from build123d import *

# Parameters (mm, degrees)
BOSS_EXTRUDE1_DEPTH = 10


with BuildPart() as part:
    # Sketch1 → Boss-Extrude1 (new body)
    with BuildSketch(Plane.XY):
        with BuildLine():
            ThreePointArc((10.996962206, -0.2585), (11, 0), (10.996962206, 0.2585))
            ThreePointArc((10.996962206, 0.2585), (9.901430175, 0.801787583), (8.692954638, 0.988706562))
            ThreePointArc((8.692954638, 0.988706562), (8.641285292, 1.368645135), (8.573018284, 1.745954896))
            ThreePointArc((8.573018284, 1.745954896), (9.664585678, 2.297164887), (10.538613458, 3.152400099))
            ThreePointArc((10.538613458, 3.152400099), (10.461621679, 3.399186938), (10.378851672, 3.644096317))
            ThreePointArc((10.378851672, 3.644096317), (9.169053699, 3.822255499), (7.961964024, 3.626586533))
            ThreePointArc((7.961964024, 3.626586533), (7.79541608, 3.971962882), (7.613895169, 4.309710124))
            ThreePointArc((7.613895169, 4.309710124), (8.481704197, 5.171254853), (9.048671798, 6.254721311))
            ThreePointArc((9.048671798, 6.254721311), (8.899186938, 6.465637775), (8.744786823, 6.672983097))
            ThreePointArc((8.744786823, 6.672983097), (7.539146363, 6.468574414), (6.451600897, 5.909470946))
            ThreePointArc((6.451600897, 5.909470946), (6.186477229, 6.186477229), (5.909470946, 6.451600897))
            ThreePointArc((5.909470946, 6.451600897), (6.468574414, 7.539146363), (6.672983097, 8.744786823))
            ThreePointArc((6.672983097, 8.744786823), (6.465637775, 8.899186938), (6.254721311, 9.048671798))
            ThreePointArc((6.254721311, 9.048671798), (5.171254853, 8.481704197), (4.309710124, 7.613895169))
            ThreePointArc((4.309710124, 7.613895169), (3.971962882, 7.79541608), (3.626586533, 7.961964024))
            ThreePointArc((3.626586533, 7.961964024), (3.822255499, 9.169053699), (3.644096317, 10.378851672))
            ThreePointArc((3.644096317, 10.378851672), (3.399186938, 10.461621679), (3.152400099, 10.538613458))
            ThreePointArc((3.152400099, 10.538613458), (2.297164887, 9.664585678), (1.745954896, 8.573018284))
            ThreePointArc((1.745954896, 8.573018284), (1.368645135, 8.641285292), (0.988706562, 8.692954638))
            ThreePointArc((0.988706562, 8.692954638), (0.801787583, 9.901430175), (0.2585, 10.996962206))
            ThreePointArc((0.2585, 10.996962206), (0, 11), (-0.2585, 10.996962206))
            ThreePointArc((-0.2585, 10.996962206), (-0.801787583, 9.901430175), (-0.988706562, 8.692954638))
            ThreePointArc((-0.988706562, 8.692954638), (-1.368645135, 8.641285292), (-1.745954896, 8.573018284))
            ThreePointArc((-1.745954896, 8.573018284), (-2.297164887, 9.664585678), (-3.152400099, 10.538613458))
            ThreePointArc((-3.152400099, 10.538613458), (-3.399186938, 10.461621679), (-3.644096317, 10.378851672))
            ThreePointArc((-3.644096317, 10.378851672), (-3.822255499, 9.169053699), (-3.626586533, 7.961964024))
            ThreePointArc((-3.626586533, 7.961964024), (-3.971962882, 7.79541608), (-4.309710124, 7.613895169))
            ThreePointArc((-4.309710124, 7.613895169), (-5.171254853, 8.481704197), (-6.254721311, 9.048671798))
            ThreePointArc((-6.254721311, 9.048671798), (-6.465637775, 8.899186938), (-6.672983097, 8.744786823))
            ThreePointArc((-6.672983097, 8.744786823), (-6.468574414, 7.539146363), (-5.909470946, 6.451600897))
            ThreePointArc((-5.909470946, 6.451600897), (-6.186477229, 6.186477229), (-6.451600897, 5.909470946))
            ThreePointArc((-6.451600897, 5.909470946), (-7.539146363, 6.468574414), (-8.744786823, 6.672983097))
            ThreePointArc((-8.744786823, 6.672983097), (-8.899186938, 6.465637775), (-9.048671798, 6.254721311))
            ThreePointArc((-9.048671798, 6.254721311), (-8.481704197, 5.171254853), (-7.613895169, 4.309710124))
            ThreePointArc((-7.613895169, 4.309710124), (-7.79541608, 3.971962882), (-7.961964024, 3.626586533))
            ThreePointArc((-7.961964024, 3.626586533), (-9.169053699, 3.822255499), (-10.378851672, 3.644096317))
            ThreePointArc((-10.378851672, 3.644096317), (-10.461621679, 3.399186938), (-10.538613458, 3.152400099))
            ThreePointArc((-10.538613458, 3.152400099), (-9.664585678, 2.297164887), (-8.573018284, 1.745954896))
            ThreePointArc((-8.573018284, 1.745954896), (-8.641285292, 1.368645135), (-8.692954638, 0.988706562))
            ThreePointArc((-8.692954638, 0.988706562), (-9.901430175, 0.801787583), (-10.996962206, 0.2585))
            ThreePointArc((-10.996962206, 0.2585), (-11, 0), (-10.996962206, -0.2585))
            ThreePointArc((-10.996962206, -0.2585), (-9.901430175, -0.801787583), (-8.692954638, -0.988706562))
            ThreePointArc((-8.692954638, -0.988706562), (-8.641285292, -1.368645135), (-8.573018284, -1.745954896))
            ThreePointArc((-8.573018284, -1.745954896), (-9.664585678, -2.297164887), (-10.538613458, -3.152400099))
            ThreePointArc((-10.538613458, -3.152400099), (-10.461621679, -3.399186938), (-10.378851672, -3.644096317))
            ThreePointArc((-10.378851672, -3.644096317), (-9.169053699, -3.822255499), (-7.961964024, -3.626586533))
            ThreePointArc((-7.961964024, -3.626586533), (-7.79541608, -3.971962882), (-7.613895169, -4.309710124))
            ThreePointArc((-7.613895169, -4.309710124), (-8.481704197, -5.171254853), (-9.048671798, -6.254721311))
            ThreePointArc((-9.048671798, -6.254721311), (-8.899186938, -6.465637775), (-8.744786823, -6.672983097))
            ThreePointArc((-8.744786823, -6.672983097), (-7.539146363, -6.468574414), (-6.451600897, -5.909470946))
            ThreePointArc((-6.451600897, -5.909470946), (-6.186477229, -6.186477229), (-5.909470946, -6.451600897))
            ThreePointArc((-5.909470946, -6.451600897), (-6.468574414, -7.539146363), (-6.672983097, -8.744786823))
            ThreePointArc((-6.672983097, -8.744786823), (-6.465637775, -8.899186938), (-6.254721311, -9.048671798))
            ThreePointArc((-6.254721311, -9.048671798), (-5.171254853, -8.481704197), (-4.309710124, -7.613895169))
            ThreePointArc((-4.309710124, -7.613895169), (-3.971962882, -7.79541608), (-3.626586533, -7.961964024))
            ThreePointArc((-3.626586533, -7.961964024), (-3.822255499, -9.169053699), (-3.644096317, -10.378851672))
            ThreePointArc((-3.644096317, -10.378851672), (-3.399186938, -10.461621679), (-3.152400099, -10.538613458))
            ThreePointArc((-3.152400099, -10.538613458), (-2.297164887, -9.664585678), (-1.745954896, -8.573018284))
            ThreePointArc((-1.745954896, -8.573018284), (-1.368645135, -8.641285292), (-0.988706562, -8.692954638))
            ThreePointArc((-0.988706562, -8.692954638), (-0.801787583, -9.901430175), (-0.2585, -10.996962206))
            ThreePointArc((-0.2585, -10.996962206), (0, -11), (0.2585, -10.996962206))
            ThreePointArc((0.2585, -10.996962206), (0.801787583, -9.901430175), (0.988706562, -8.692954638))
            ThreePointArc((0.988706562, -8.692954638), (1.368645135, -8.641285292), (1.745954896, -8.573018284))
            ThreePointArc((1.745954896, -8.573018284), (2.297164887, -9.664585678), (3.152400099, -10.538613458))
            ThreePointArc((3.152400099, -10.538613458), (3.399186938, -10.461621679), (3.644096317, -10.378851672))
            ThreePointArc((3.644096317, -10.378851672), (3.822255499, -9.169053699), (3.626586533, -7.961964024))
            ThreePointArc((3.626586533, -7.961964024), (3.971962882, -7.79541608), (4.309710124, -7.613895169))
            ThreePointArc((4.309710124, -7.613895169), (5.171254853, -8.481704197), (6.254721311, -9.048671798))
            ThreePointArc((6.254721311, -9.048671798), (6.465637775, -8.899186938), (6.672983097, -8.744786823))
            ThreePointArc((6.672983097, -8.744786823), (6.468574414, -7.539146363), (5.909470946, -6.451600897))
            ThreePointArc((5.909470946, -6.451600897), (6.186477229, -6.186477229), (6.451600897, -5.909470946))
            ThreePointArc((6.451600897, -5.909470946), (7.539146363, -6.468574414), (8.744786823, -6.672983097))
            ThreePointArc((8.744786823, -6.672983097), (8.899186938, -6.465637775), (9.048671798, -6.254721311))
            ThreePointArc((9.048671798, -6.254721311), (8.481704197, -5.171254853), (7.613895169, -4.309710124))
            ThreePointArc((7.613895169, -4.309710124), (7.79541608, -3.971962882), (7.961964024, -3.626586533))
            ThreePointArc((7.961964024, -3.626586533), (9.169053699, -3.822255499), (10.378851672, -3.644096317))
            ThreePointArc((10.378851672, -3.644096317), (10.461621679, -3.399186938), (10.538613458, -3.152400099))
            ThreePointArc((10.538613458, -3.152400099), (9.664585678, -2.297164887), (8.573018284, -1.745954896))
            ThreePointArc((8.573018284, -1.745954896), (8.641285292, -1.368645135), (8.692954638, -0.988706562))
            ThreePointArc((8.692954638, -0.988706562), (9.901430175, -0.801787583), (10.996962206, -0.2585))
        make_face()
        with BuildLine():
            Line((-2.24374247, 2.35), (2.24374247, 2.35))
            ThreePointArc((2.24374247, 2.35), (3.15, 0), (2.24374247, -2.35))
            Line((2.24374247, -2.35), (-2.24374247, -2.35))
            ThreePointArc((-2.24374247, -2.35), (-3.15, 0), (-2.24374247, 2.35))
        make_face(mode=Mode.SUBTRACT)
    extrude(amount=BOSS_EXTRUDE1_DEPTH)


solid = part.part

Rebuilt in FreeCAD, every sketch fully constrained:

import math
import FreeCAD as App
import Part
import Sketcher

doc = App.newDocument("Part")
body = doc.addObject("PartDesign::Body", "Body")

# Sketch on XY plane
sketch1 = body.newObject("Sketcher::SketchObject", "Sketch")
sketch1.AttachmentSupport = (doc.getObject("XY_Plane"), [""])
sketch1.MapMode = "FlatFace"
sketch1.addGeometry([
    Part.ArcOfCircle(Part.Circle(App.Vector(0, 0, 0), App.Vector(0, 0, 1), 11), math.radians(-1.35), math.radians(1.35)),  # 0
    Part.ArcOfCircle(Part.Circle(App.Vector(8.7, -3, 0), App.Vector(0, 0, 1), 4), math.radians(55), math.radians(90)),  # 1
    Part.ArcOfCircle(Part.Circle(App.Vector(0, 0, 0), App.Vector(0, 0, 1), 8.7), math.radians(6.49), math.radians(11.51)),  # 2
    Part.ArcOfCircle(Part.Circle(App.Vector(7.3, 5.6, 0), App.Vector(0, 0, 1), 4), math.radians(-72), math.radians(-37)),  # 3
    Part.ArcOfCircle(Part.Circle(App.Vector(0, 0, 0), App.Vector(0, 0, 1), 11), math.radians(16.65), math.radians(19.35)),  # 4
    Part.ArcOfCircle(Part.Circle(App.Vector(9.2, -0.2, 0), App.Vector(0, 0, 1), 4), math.radians(73), math.radians(108)),  # 5
    Part.ArcOfCircle(Part.Circle(App.Vector(0, 0, 0), App.Vector(0, 0, 1), 8.7), math.radians(24.49), math.radians(29.51)),  # 6
    Part.ArcOfCircle(Part.Circle(App.Vector(5.3, 7.5, 0), App.Vector(0, 0, 1), 4), math.radians(-54), math.radians(-19)),  # 7
    Part.ArcOfCircle(Part.Circle(App.Vector(0, 0, 0), App.Vector(0, 0, 1), 11), math.radians(34.65), math.radians(37.35)),  # 8
    Part.ArcOfCircle(Part.Circle(App.Vector(8.8, 2.7, 0), App.Vector(0, 0, 1), 4), math.radians(91), math.radians(126)),  # 9
    Part.ArcOfCircle(Part.Circle(App.Vector(0, 0, 0), App.Vector(0, 0, 1), 8.7), math.radians(42.49), math.radians(47.51)),  # 10
    Part.ArcOfCircle(Part.Circle(App.Vector(2.7, 8.8, 0), App.Vector(0, 0, 1), 4), math.radians(-36), math.radians(-1)),  # 11
    Part.ArcOfCircle(Part.Circle(App.Vector(0, 0, 0), App.Vector(0, 0, 1), 11), math.radians(52.65), math.radians(55.35)),  # 12
    Part.ArcOfCircle(Part.Circle(App.Vector(7.5, 5.3, 0), App.Vector(0, 0, 1), 4), math.radians(109), math.radians(144)),  # 13
    Part.ArcOfCircle(Part.Circle(App.Vector(0, 0, 0), App.Vector(0, 0, 1), 8.7), math.radians(60.49), math.radians(65.51)),  # 14
    Part.ArcOfCircle(Part.Circle(App.Vector(-0.2, 9.2, 0), App.Vector(0, 0, 1), 4), math.radians(-18), math.radians(17)),  # 15
    Part.ArcOfCircle(Part.Circle(App.Vector(0, 0, 0), App.Vector(0, 0, 1), 11), math.radians(70.65), math.radians(73.35)),  # 16
    Part.ArcOfCircle(Part.Circle(App.Vector(5.6, 7.3, 0), App.Vector(0, 0, 1), 4), math.radians(127), math.radians(162)),  # 17
    Part.ArcOfCircle(Part.Circle(App.Vector(0, 0, 0), App.Vector(0, 0, 1), 8.7), math.radians(78.49), math.radians(83.51)),  # 18
    Part.ArcOfCircle(Part.Circle(App.Vector(-3, 8.7, 0), App.Vector(0, 0, 1), 4), math.radians(0), math.radians(35)),  # 19
    Part.ArcOfCircle(Part.Circle(App.Vector(0, 0, 0), App.Vector(0, 0, 1), 11), math.radians(88.65), math.radians(91.35)),  # 20
    Part.ArcOfCircle(Part.Circle(App.Vector(3, 8.7, 0), App.Vector(0, 0, 1), 4), math.radians(145), math.radians(180)),  # 21
    Part.ArcOfCircle(Part.Circle(App.Vector(0, 0, 0), App.Vector(0, 0, 1), 8.7), math.radians(96.49), math.radians(101.51)),  # 22
    Part.ArcOfCircle(Part.Circle(App.Vector(-5.6, 7.3, 0), App.Vector(0, 0, 1), 4), math.radians(18), math.radians(53)),  # 23
    Part.ArcOfCircle(Part.Circle(App.Vector(0, 0, 0), App.Vector(0, 0, 1), 11), math.radians(106.65), math.radians(109.35)),  # 24
    Part.ArcOfCircle(Part.Circle(App.Vector(0.2, 9.2, 0), App.Vector(0, 0, 1), 4), math.radians(163), math.radians(198)),  # 25
    Part.ArcOfCircle(Part.Circle(App.Vector(0, 0, 0), App.Vector(0, 0, 1), 8.7), math.radians(114.49), math.radians(119.51)),  # 26
    Part.ArcOfCircle(Part.Circle(App.Vector(-7.5, 5.3, 0), App.Vector(0, 0, 1), 4), math.radians(36), math.radians(71)),  # 27
    Part.ArcOfCircle(Part.Circle(App.Vector(0, 0, 0), App.Vector(0, 0, 1), 11), math.radians(124.65), math.radians(127.35)),  # 28
    Part.ArcOfCircle(Part.Circle(App.Vector(-2.7, 8.8, 0), App.Vector(0, 0, 1), 4), math.radians(-179), math.radians(-144)),  # 29
    Part.ArcOfCircle(Part.Circle(App.Vector(0, 0, 0), App.Vector(0, 0, 1), 8.7), math.radians(132.49), math.radians(137.51)),  # 30
    Part.ArcOfCircle(Part.Circle(App.Vector(-8.8, 2.7, 0), App.Vector(0, 0, 1), 4), math.radians(54), math.radians(89)),  # 31
    Part.ArcOfCircle(Part.Circle(App.Vector(0, 0, 0), App.Vector(0, 0, 1), 11), math.radians(142.65), math.radians(145.35)),  # 32
    Part.ArcOfCircle(Part.Circle(App.Vector(-5.3, 7.5, 0), App.Vector(0, 0, 1), 4), math.radians(-161), math.radians(-126)),  # 33
    Part.ArcOfCircle(Part.Circle(App.Vector(0, 0, 0), App.Vector(0, 0, 1), 8.7), math.radians(150.49), math.radians(155.51)),  # 34
    Part.ArcOfCircle(Part.Circle(App.Vector(-9.2, -0.2, 0), App.Vector(0, 0, 1), 4), math.radians(72), math.radians(107)),  # 35
    Part.ArcOfCircle(Part.Circle(App.Vector(0, 0, 0), App.Vector(0, 0, 1), 11), math.radians(160.65), math.radians(163.35)),  # 36
    Part.ArcOfCircle(Part.Circle(App.Vector(-7.3, 5.6, 0), App.Vector(0, 0, 1), 4), math.radians(-143), math.radians(-108)),  # 37
    Part.ArcOfCircle(Part.Circle(App.Vector(0, 0, 0), App.Vector(0, 0, 1), 8.7), math.radians(168.49), math.radians(173.51)),  # 38
    Part.ArcOfCircle(Part.Circle(App.Vector(-8.7, -3, 0), App.Vector(0, 0, 1), 4), math.radians(90), math.radians(125)),  # 39
    Part.ArcOfCircle(Part.Circle(App.Vector(0, 0, 0), App.Vector(0, 0, 1), 11), math.radians(178.65), math.radians(181.35)),  # 40
    Part.ArcOfCircle(Part.Circle(App.Vector(-8.7, 3, 0), App.Vector(0, 0, 1), 4), math.radians(-125), math.radians(-90)),  # 41
    Part.ArcOfCircle(Part.Circle(App.Vector(0, 0, 0), App.Vector(0, 0, 1), 8.7), math.radians(-173.51), math.radians(-168.49)),  # 42
    Part.ArcOfCircle(Part.Circle(App.Vector(-7.3, -5.6, 0), App.Vector(0, 0, 1), 4), math.radians(108), math.radians(143)),  # 43
    Part.ArcOfCircle(Part.Circle(App.Vector(0, 0, 0), App.Vector(0, 0, 1), 11), math.radians(-163.35), math.radians(-160.65)),  # 44
    Part.ArcOfCircle(Part.Circle(App.Vector(-9.2, 0.2, 0), App.Vector(0, 0, 1), 4), math.radians(-107), math.radians(-72)),  # 45
    Part.ArcOfCircle(Part.Circle(App.Vector(0, 0, 0), App.Vector(0, 0, 1), 8.7), math.radians(-155.51), math.radians(-150.49)),  # 46
    Part.ArcOfCircle(Part.Circle(App.Vector(-5.3, -7.5, 0), App.Vector(0, 0, 1), 4), math.radians(126), math.radians(161)),  # 47
    Part.ArcOfCircle(Part.Circle(App.Vector(0, 0, 0), App.Vector(0, 0, 1), 11), math.radians(-145.35), math.radians(-142.65)),  # 48
    Part.ArcOfCircle(Part.Circle(App.Vector(-8.8, -2.7, 0), App.Vector(0, 0, 1), 4), math.radians(-89), math.radians(-54)),  # 49
    Part.ArcOfCircle(Part.Circle(App.Vector(0, 0, 0), App.Vector(0, 0, 1), 8.7), math.radians(-137.51), math.radians(-132.49)),  # 50
    Part.ArcOfCircle(Part.Circle(App.Vector(-2.7, -8.8, 0), App.Vector(0, 0, 1), 4), math.radians(144), math.radians(179)),  # 51
    Part.ArcOfCircle(Part.Circle(App.Vector(0, 0, 0), App.Vector(0, 0, 1), 11), math.radians(-127.35), math.radians(-124.65)),  # 52
    Part.ArcOfCircle(Part.Circle(App.Vector(-7.5, -5.3, 0), App.Vector(0, 0, 1), 4), math.radians(-71), math.radians(-36)),  # 53
    Part.ArcOfCircle(Part.Circle(App.Vector(0, 0, 0), App.Vector(0, 0, 1), 8.7), math.radians(-119.51), math.radians(-114.49)),  # 54
    Part.ArcOfCircle(Part.Circle(App.Vector(0.2, -9.2, 0), App.Vector(0, 0, 1), 4), math.radians(162), math.radians(197)),  # 55
    Part.ArcOfCircle(Part.Circle(App.Vector(0, 0, 0), App.Vector(0, 0, 1), 11), math.radians(-109.35), math.radians(-106.65)),  # 56
    Part.ArcOfCircle(Part.Circle(App.Vector(-5.6, -7.3, 0), App.Vector(0, 0, 1), 4), math.radians(-53), math.radians(-18)),  # 57
    Part.ArcOfCircle(Part.Circle(App.Vector(0, 0, 0), App.Vector(0, 0, 1), 8.7), math.radians(-101.51), math.radians(-96.49)),  # 58
    Part.ArcOfCircle(Part.Circle(App.Vector(3, -8.7, 0), App.Vector(0, 0, 1), 4), math.radians(-180), math.radians(-145)),  # 59
    Part.ArcOfCircle(Part.Circle(App.Vector(0, 0, 0), App.Vector(0, 0, 1), 11), math.radians(-91.35), math.radians(-88.65)),  # 60
    Part.ArcOfCircle(Part.Circle(App.Vector(-3, -8.7, 0), App.Vector(0, 0, 1), 4), math.radians(-35), math.radians(0)),  # 61
    Part.ArcOfCircle(Part.Circle(App.Vector(0, 0, 0), App.Vector(0, 0, 1), 8.7), math.radians(-83.51), math.radians(-78.49)),  # 62
    Part.ArcOfCircle(Part.Circle(App.Vector(5.6, -7.3, 0), App.Vector(0, 0, 1), 4), math.radians(-162), math.radians(-127)),  # 63
    Part.ArcOfCircle(Part.Circle(App.Vector(0, 0, 0), App.Vector(0, 0, 1), 11), math.radians(-73.35), math.radians(-70.65)),  # 64
    Part.ArcOfCircle(Part.Circle(App.Vector(-0.2, -9.2, 0), App.Vector(0, 0, 1), 4), math.radians(-17), math.radians(18)),  # 65
    Part.ArcOfCircle(Part.Circle(App.Vector(0, 0, 0), App.Vector(0, 0, 1), 8.7), math.radians(-65.51), math.radians(-60.49)),  # 66
    Part.ArcOfCircle(Part.Circle(App.Vector(7.5, -5.3, 0), App.Vector(0, 0, 1), 4), math.radians(-144), math.radians(-109)),  # 67
    Part.ArcOfCircle(Part.Circle(App.Vector(0, 0, 0), App.Vector(0, 0, 1), 11), math.radians(-55.35), math.radians(-52.65)),  # 68
    Part.ArcOfCircle(Part.Circle(App.Vector(2.7, -8.8, 0), App.Vector(0, 0, 1), 4), math.radians(1), math.radians(36)),  # 69
    Part.ArcOfCircle(Part.Circle(App.Vector(0, 0, 0), App.Vector(0, 0, 1), 8.7), math.radians(-47.51), math.radians(-42.49)),  # 70
    Part.ArcOfCircle(Part.Circle(App.Vector(8.8, -2.7, 0), App.Vector(0, 0, 1), 4), math.radians(-126), math.radians(-91)),  # 71
    Part.ArcOfCircle(Part.Circle(App.Vector(0, 0, 0), App.Vector(0, 0, 1), 11), math.radians(-37.35), math.radians(-34.65)),  # 72
    Part.ArcOfCircle(Part.Circle(App.Vector(5.3, -7.5, 0), App.Vector(0, 0, 1), 4), math.radians(19), math.radians(54)),  # 73
    Part.ArcOfCircle(Part.Circle(App.Vector(0, 0, 0), App.Vector(0, 0, 1), 8.7), math.radians(-29.51), math.radians(-24.49)),  # 74
    Part.ArcOfCircle(Part.Circle(App.Vector(9.2, 0.2, 0), App.Vector(0, 0, 1), 4), math.radians(-108), math.radians(-73)),  # 75
    Part.ArcOfCircle(Part.Circle(App.Vector(0, 0, 0), App.Vector(0, 0, 1), 11), math.radians(-19.35), math.radians(-16.65)),  # 76
    Part.ArcOfCircle(Part.Circle(App.Vector(7.3, -5.6, 0), App.Vector(0, 0, 1), 4), math.radians(37), math.radians(72)),  # 77
    Part.ArcOfCircle(Part.Circle(App.Vector(0, 0, 0), App.Vector(0, 0, 1), 8.7), math.radians(-11.51), math.radians(-6.49)),  # 78
    Part.ArcOfCircle(Part.Circle(App.Vector(8.7, 3, 0), App.Vector(0, 0, 1), 4), math.radians(-90), math.radians(-55)),  # 79
    Part.ArcOfCircle(Part.Circle(App.Vector(0.3, 0, 0), App.Vector(0, 0, 1), 3.5), math.radians(138), math.radians(222)),  # 80
    Part.LineSegment(App.Vector(-2.2, 2.4, 0), App.Vector(2.2, 2.4, 0)),  # 81
    Part.ArcOfCircle(Part.Circle(App.Vector(-0.3, 0, 0), App.Vector(0, 0, 1), 3.5), math.radians(-42), math.radians(42)),  # 82
    Part.LineSegment(App.Vector(2.2, -2.4, 0), App.Vector(-2.2, -2.4, 0)),  # 83
], False)
sketch1.addConstraint([
    Sketcher.Constraint("Coincident", 0, 2, 1, 1),
    Sketcher.Constraint("Coincident", 1, 2, 2, 1),
    Sketcher.Constraint("Coincident", 2, 2, 3, 1),
    Sketcher.Constraint("Coincident", 3, 2, 4, 1),
    Sketcher.Constraint("Coincident", 4, 2, 5, 1),
    Sketcher.Constraint("Coincident", 5, 2, 6, 1),
    Sketcher.Constraint("Coincident", 6, 2, 7, 1),
    Sketcher.Constraint("Coincident", 7, 2, 8, 1),
    Sketcher.Constraint("Coincident", 8, 2, 9, 1),
    Sketcher.Constraint("Coincident", 9, 2, 10, 1),
    Sketcher.Constraint("Coincident", 10, 2, 11, 1),
    Sketcher.Constraint("Coincident", 11, 2, 12, 1),
    Sketcher.Constraint("Coincident", 12, 2, 13, 1),
    Sketcher.Constraint("Coincident", 13, 2, 14, 1),
    Sketcher.Constraint("Coincident", 14, 2, 15, 1),
    Sketcher.Constraint("Coincident", 15, 2, 16, 1),
    Sketcher.Constraint("Coincident", 16, 2, 17, 1),
    Sketcher.Constraint("Coincident", 17, 2, 18, 1),
    Sketcher.Constraint("Coincident", 18, 2, 19, 1),
    Sketcher.Constraint("Coincident", 19, 2, 20, 1),
    Sketcher.Constraint("Coincident", 20, 2, 21, 1),
    Sketcher.Constraint("Coincident", 21, 2, 22, 1),
    Sketcher.Constraint("Coincident", 22, 2, 23, 1),
    Sketcher.Constraint("Coincident", 23, 2, 24, 1),
    Sketcher.Constraint("Coincident", 24, 2, 25, 1),
    Sketcher.Constraint("Coincident", 25, 2, 26, 1),
    Sketcher.Constraint("Coincident", 26, 2, 27, 1),
    Sketcher.Constraint("Coincident", 27, 2, 28, 1),
    Sketcher.Constraint("Coincident", 28, 2, 29, 1),
    Sketcher.Constraint("Coincident", 29, 2, 30, 1),
    Sketcher.Constraint("Coincident", 30, 2, 31, 1),
    Sketcher.Constraint("Coincident", 31, 2, 32, 1),
    Sketcher.Constraint("Coincident", 32, 2, 33, 1),
    Sketcher.Constraint("Coincident", 33, 2, 34, 1),
    Sketcher.Constraint("Coincident", 34, 2, 35, 1),
    Sketcher.Constraint("Coincident", 35, 2, 36, 1),
    Sketcher.Constraint("Coincident", 36, 2, 37, 1),
    Sketcher.Constraint("Coincident", 37, 2, 38, 1),
    Sketcher.Constraint("Coincident", 38, 2, 39, 1),
    Sketcher.Constraint("Coincident", 39, 2, 40, 1),
    Sketcher.Constraint("Coincident", 40, 2, 41, 1),
    Sketcher.Constraint("Coincident", 41, 2, 42, 1),
    Sketcher.Constraint("Coincident", 42, 2, 43, 1),
    Sketcher.Constraint("Coincident", 43, 2, 44, 1),
    Sketcher.Constraint("Coincident", 44, 2, 45, 1),
    Sketcher.Constraint("Coincident", 45, 2, 46, 1),
    Sketcher.Constraint("Coincident", 46, 2, 47, 1),
    Sketcher.Constraint("Coincident", 47, 2, 48, 1),
    Sketcher.Constraint("Coincident", 48, 2, 49, 1),
    Sketcher.Constraint("Coincident", 49, 2, 50, 1),
    Sketcher.Constraint("Coincident", 50, 2, 51, 1),
    Sketcher.Constraint("Coincident", 51, 2, 52, 1),
    Sketcher.Constraint("Coincident", 52, 2, 53, 1),
    Sketcher.Constraint("Coincident", 53, 2, 54, 1),
    Sketcher.Constraint("Coincident", 54, 2, 55, 1),
    Sketcher.Constraint("Coincident", 55, 2, 56, 1),
    Sketcher.Constraint("Coincident", 56, 2, 57, 1),
    Sketcher.Constraint("Coincident", 57, 2, 58, 1),
    Sketcher.Constraint("Coincident", 58, 2, 59, 1),
    Sketcher.Constraint("Coincident", 59, 2, 60, 1),
    Sketcher.Constraint("Coincident", 60, 2, 61, 1),
    Sketcher.Constraint("Coincident", 61, 2, 62, 1),
    Sketcher.Constraint("Coincident", 62, 2, 63, 1),
    Sketcher.Constraint("Coincident", 63, 2, 64, 1),
    Sketcher.Constraint("Coincident", 64, 2, 65, 1),
    Sketcher.Constraint("Coincident", 65, 2, 66, 1),
    Sketcher.Constraint("Coincident", 66, 2, 67, 1),
    Sketcher.Constraint("Coincident", 67, 2, 68, 1),
    Sketcher.Constraint("Coincident", 68, 2, 69, 1),
    Sketcher.Constraint("Coincident", 69, 2, 70, 1),
    Sketcher.Constraint("Coincident", 70, 2, 71, 1),
    Sketcher.Constraint("Coincident", 71, 2, 72, 1),
    Sketcher.Constraint("Coincident", 72, 2, 73, 1),
    Sketcher.Constraint("Coincident", 73, 2, 74, 1),
    Sketcher.Constraint("Coincident", 74, 2, 75, 1),
    Sketcher.Constraint("Coincident", 75, 2, 76, 1),
    Sketcher.Constraint("Coincident", 76, 2, 77, 1),
    Sketcher.Constraint("Coincident", 77, 2, 78, 1),
    Sketcher.Constraint("Coincident", 78, 2, 79, 1),
    Sketcher.Constraint("Coincident", 79, 2, 0, 1),
    Sketcher.Constraint("Coincident", 80, 1, 81, 1),
    Sketcher.Constraint("Coincident", 81, 2, 82, 2),
    Sketcher.Constraint("Coincident", 82, 1, 83, 1),
    Sketcher.Constraint("Coincident", 83, 2, 80, 2),
    Sketcher.Constraint("Horizontal", 81),
    Sketcher.Constraint("Horizontal", 83),
    Sketcher.Constraint("Coincident", 0, 3, -1, 1),
    Sketcher.Constraint("Coincident", 2, 3, -1, 1),
    Sketcher.Constraint("Coincident", 4, 3, -1, 1),
    Sketcher.Constraint("Coincident", 6, 3, -1, 1),
    Sketcher.Constraint("Coincident", 8, 3, -1, 1),
    Sketcher.Constraint("Coincident", 10, 3, -1, 1),
    Sketcher.Constraint("Coincident", 12, 3, -1, 1),
    Sketcher.Constraint("Coincident", 14, 3, -1, 1),
    Sketcher.Constraint("Coincident", 16, 3, -1, 1),
    Sketcher.Constraint("Coincident", 18, 3, -1, 1),
    Sketcher.Constraint("Coincident", 20, 3, -1, 1),
    Sketcher.Constraint("Coincident", 22, 3, -1, 1),
    Sketcher.Constraint("Coincident", 24, 3, -1, 1),
    Sketcher.Constraint("Coincident", 26, 3, -1, 1),
    Sketcher.Constraint("Coincident", 28, 3, -1, 1),
    Sketcher.Constraint("Coincident", 30, 3, -1, 1),
    Sketcher.Constraint("Coincident", 32, 3, -1, 1),
    Sketcher.Constraint("Coincident", 34, 3, -1, 1),
    Sketcher.Constraint("Coincident", 36, 3, -1, 1),
    Sketcher.Constraint("Coincident", 38, 3, -1, 1),
    Sketcher.Constraint("Coincident", 40, 3, -1, 1),
    Sketcher.Constraint("Coincident", 42, 3, -1, 1),
    Sketcher.Constraint("Coincident", 44, 3, -1, 1),
    Sketcher.Constraint("Coincident", 46, 3, -1, 1),
    Sketcher.Constraint("Coincident", 48, 3, -1, 1),
    Sketcher.Constraint("Coincident", 50, 3, -1, 1),
    Sketcher.Constraint("Coincident", 52, 3, -1, 1),
    Sketcher.Constraint("Coincident", 54, 3, -1, 1),
    Sketcher.Constraint("Coincident", 56, 3, -1, 1),
    Sketcher.Constraint("Coincident", 58, 3, -1, 1),
    Sketcher.Constraint("Coincident", 60, 3, -1, 1),
    Sketcher.Constraint("Coincident", 62, 3, -1, 1),
    Sketcher.Constraint("Coincident", 64, 3, -1, 1),
    Sketcher.Constraint("Coincident", 66, 3, -1, 1),
    Sketcher.Constraint("Coincident", 68, 3, -1, 1),
    Sketcher.Constraint("Coincident", 70, 3, -1, 1),
    Sketcher.Constraint("Coincident", 72, 3, -1, 1),
    Sketcher.Constraint("Coincident", 74, 3, -1, 1),
    Sketcher.Constraint("Coincident", 76, 3, -1, 1),
    Sketcher.Constraint("Coincident", 78, 3, -1, 1),
    Sketcher.Constraint("Equal", 1, 3),
    Sketcher.Constraint("Equal", 0, 4),
    Sketcher.Constraint("Equal", 3, 5),
    Sketcher.Constraint("Equal", 2, 6),
    Sketcher.Constraint("Equal", 5, 7),
    Sketcher.Constraint("Equal", 4, 8),
    Sketcher.Constraint("Equal", 7, 9),
    Sketcher.Constraint("Equal", 6, 10),
    Sketcher.Constraint("Equal", 9, 11),
    Sketcher.Constraint("Equal", 8, 12),
    Sketcher.Constraint("Equal", 11, 13),
    Sketcher.Constraint("Equal", 10, 14),
    Sketcher.Constraint("Equal", 13, 15),
    Sketcher.Constraint("Equal", 12, 16),
    Sketcher.Constraint("Equal", 15, 17),
    Sketcher.Constraint("Equal", 14, 18),
    Sketcher.Constraint("Equal", 17, 19),
    Sketcher.Constraint("Equal", 16, 20),
    Sketcher.Constraint("Equal", 19, 21),
    Sketcher.Constraint("Equal", 18, 22),
    Sketcher.Constraint("Equal", 21, 23),
    Sketcher.Constraint("Equal", 20, 24),
    Sketcher.Constraint("Equal", 23, 25),
    Sketcher.Constraint("Equal", 22, 26),
    Sketcher.Constraint("Equal", 25, 27),
    Sketcher.Constraint("Equal", 24, 28),
    Sketcher.Constraint("Equal", 27, 29),
    Sketcher.Constraint("Equal", 26, 30),
    Sketcher.Constraint("Equal", 29, 31),
    Sketcher.Constraint("Equal", 28, 32),
    Sketcher.Constraint("Equal", 31, 33),
    Sketcher.Constraint("Equal", 30, 34),
    Sketcher.Constraint("Equal", 33, 35),
    Sketcher.Constraint("Equal", 32, 36),
    Sketcher.Constraint("Equal", 35, 37),
    Sketcher.Constraint("Equal", 34, 38),
    Sketcher.Constraint("Equal", 37, 39),
    Sketcher.Constraint("Equal", 36, 40),
    Sketcher.Constraint("Equal", 39, 41),
    Sketcher.Constraint("Equal", 38, 42),
    Sketcher.Constraint("Equal", 41, 43),
    Sketcher.Constraint("Equal", 40, 44),
    Sketcher.Constraint("Equal", 43, 45),
    Sketcher.Constraint("Equal", 42, 46),
    Sketcher.Constraint("Equal", 45, 47),
    Sketcher.Constraint("Equal", 44, 48),
    Sketcher.Constraint("Equal", 47, 49),
    Sketcher.Constraint("Equal", 46, 50),
    Sketcher.Constraint("Equal", 49, 51),
    Sketcher.Constraint("Equal", 48, 52),
    Sketcher.Constraint("Equal", 51, 53),
    Sketcher.Constraint("Equal", 50, 54),
    Sketcher.Constraint("Equal", 53, 55),
    Sketcher.Constraint("Equal", 52, 56),
    Sketcher.Constraint("Equal", 55, 57),
    Sketcher.Constraint("Equal", 54, 58),
    Sketcher.Constraint("Equal", 57, 59),
    Sketcher.Constraint("Equal", 56, 60),
    Sketcher.Constraint("Equal", 59, 61),
    Sketcher.Constraint("Equal", 58, 62),
    Sketcher.Constraint("Equal", 61, 63),
    Sketcher.Constraint("Equal", 60, 64),
    Sketcher.Constraint("Equal", 63, 65),
    Sketcher.Constraint("Equal", 62, 66),
    Sketcher.Constraint("Equal", 65, 67),
    Sketcher.Constraint("Equal", 64, 68),
    Sketcher.Constraint("Equal", 67, 69),
    Sketcher.Constraint("Equal", 66, 70),
    Sketcher.Constraint("Equal", 69, 71),
    Sketcher.Constraint("Equal", 68, 72),
    Sketcher.Constraint("Equal", 71, 73),
    Sketcher.Constraint("Equal", 70, 74),
    Sketcher.Constraint("Equal", 73, 75),
    Sketcher.Constraint("Equal", 72, 76),
    Sketcher.Constraint("Equal", 75, 77),
    Sketcher.Constraint("Equal", 74, 78),
    Sketcher.Constraint("Equal", 77, 79),
    Sketcher.Constraint("Equal", 80, 82),
    Sketcher.Constraint("Symmetric", 1, 3, 41, 3, -1, 1),
    Sketcher.Constraint("Symmetric", 3, 3, 43, 3, -1, 1),
    Sketcher.Constraint("Symmetric", 5, 3, 45, 3, -1, 1),
    Sketcher.Constraint("Symmetric", 7, 3, 47, 3, -1, 1),
    Sketcher.Constraint("Symmetric", 9, 3, 49, 3, -1, 1),
    Sketcher.Constraint("Symmetric", 11, 3, 51, 3, -1, 1),
    Sketcher.Constraint("Symmetric", 13, 3, 53, 3, -1, 1),
    Sketcher.Constraint("Symmetric", 15, 3, 55, 3, -1, 1),
    Sketcher.Constraint("Symmetric", 17, 3, 57, 3, -1, 1),
    Sketcher.Constraint("Symmetric", 19, 3, 59, 3, -1, 1),
    Sketcher.Constraint("Symmetric", 21, 3, 61, 3, -1, 1),
    Sketcher.Constraint("Symmetric", 23, 3, 63, 3, -1, 1),
    Sketcher.Constraint("Symmetric", 25, 3, 65, 3, -1, 1),
    Sketcher.Constraint("Symmetric", 27, 3, 67, 3, -1, 1),
    Sketcher.Constraint("Symmetric", 29, 3, 69, 3, -1, 1),
    Sketcher.Constraint("Symmetric", 31, 3, 71, 3, -1, 1),
    Sketcher.Constraint("Symmetric", 33, 3, 73, 3, -1, 1),
    Sketcher.Constraint("Symmetric", 35, 3, 75, 3, -1, 1),
    Sketcher.Constraint("Symmetric", 37, 3, 77, 3, -1, 1),
    Sketcher.Constraint("Symmetric", 39, 3, 79, 3, -1, 1),
    Sketcher.Constraint("Symmetric", 80, 3, 82, 3, -1, 1),
    Sketcher.Constraint("Symmetric", 19, 3, 21, 3, -2),
    Sketcher.Constraint("Symmetric", 17, 3, 23, 3, -2),
    Sketcher.Constraint("Symmetric", 15, 3, 25, 3, -2),
    Sketcher.Constraint("Symmetric", 13, 3, 27, 3, -2),
    Sketcher.Constraint("Symmetric", 11, 3, 29, 3, -2),
    Sketcher.Constraint("Symmetric", 9, 3, 31, 3, -2),
    Sketcher.Constraint("Symmetric", 7, 3, 33, 3, -2),
    Sketcher.Constraint("Symmetric", 5, 3, 35, 3, -2),
    Sketcher.Constraint("Symmetric", 3, 3, 37, 3, -2),
    Sketcher.Constraint("Symmetric", 1, 3, 39, 3, -2),
    Sketcher.Constraint("Symmetric", 81, 2, 82, 1, -1),
    Sketcher.Constraint("Horizontal", 21, 3, 18, 2),
    Sketcher.Constraint("Vertical", 79, 3, 1, 2),
    Sketcher.Constraint("Radius", 0, 11.000002),
    Sketcher.Constraint("Radius", 1, 4.0),
    Sketcher.Constraint("Radius", 80, 3.5),
    Sketcher.Constraint("Radius", 2, 8.749),
    Sketcher.Constraint("DistanceX", -1, 1, 80, 3, 0.35),
    Sketcher.Constraint("DistanceY", -1, 1, 80, 1, 2.35),
    Sketcher.Constraint("DistanceY", -1, 1, 0, 2, 0.2585),
    Sketcher.Constraint("DistanceY", -1, 1, 3, 2, 3.1524),
    Sketcher.Constraint("DistanceX", -1, 1, 9, 2, 6.451601),
    Sketcher.Constraint("DistanceY", -1, 1, 10, 2, 6.451601),
    Sketcher.Constraint("DistanceX", -1, 1, 16, 2, 3.1524),
    Sketcher.Constraint("DistanceX", -1, 1, 19, 2, 0.2585),
    Sketcher.Constraint("DistanceX", -1, 1, 3, 3, 7.33695),
    Sketcher.Constraint("DistanceY", 5, 3, -1, 1, 0.17764),
    Sketcher.Constraint("DistanceY", -1, 1, 7, 3, 7.545778),
    Sketcher.Constraint("DistanceX", -1, 1, 9, 3, 8.802742),
    Sketcher.Constraint("DistanceY", -1, 1, 11, 3, 8.802742),
    Sketcher.Constraint("DistanceX", -1, 1, 13, 3, 7.545778),
    Sketcher.Constraint("DistanceX", 15, 3, -1, 1, 0.17764),
    Sketcher.Constraint("DistanceX", -1, 1, 17, 3, 5.550181),
    Sketcher.Constraint("DistanceX", -1, 1, 4, 2, 10.378852),
    Sketcher.Constraint("DistanceY", -1, 1, 6, 2, 4.30971),
    Sketcher.Constraint("DistanceX", -1, 1, 12, 2, 6.254721),
    Sketcher.Constraint("DistanceY", -1, 1, 15, 2, 10.378852),
])
pad1 = body.newObject("PartDesign::Pad", "Pad")
pad1.Profile = sketch1
pad1.Length = 10

doc.recompute()
